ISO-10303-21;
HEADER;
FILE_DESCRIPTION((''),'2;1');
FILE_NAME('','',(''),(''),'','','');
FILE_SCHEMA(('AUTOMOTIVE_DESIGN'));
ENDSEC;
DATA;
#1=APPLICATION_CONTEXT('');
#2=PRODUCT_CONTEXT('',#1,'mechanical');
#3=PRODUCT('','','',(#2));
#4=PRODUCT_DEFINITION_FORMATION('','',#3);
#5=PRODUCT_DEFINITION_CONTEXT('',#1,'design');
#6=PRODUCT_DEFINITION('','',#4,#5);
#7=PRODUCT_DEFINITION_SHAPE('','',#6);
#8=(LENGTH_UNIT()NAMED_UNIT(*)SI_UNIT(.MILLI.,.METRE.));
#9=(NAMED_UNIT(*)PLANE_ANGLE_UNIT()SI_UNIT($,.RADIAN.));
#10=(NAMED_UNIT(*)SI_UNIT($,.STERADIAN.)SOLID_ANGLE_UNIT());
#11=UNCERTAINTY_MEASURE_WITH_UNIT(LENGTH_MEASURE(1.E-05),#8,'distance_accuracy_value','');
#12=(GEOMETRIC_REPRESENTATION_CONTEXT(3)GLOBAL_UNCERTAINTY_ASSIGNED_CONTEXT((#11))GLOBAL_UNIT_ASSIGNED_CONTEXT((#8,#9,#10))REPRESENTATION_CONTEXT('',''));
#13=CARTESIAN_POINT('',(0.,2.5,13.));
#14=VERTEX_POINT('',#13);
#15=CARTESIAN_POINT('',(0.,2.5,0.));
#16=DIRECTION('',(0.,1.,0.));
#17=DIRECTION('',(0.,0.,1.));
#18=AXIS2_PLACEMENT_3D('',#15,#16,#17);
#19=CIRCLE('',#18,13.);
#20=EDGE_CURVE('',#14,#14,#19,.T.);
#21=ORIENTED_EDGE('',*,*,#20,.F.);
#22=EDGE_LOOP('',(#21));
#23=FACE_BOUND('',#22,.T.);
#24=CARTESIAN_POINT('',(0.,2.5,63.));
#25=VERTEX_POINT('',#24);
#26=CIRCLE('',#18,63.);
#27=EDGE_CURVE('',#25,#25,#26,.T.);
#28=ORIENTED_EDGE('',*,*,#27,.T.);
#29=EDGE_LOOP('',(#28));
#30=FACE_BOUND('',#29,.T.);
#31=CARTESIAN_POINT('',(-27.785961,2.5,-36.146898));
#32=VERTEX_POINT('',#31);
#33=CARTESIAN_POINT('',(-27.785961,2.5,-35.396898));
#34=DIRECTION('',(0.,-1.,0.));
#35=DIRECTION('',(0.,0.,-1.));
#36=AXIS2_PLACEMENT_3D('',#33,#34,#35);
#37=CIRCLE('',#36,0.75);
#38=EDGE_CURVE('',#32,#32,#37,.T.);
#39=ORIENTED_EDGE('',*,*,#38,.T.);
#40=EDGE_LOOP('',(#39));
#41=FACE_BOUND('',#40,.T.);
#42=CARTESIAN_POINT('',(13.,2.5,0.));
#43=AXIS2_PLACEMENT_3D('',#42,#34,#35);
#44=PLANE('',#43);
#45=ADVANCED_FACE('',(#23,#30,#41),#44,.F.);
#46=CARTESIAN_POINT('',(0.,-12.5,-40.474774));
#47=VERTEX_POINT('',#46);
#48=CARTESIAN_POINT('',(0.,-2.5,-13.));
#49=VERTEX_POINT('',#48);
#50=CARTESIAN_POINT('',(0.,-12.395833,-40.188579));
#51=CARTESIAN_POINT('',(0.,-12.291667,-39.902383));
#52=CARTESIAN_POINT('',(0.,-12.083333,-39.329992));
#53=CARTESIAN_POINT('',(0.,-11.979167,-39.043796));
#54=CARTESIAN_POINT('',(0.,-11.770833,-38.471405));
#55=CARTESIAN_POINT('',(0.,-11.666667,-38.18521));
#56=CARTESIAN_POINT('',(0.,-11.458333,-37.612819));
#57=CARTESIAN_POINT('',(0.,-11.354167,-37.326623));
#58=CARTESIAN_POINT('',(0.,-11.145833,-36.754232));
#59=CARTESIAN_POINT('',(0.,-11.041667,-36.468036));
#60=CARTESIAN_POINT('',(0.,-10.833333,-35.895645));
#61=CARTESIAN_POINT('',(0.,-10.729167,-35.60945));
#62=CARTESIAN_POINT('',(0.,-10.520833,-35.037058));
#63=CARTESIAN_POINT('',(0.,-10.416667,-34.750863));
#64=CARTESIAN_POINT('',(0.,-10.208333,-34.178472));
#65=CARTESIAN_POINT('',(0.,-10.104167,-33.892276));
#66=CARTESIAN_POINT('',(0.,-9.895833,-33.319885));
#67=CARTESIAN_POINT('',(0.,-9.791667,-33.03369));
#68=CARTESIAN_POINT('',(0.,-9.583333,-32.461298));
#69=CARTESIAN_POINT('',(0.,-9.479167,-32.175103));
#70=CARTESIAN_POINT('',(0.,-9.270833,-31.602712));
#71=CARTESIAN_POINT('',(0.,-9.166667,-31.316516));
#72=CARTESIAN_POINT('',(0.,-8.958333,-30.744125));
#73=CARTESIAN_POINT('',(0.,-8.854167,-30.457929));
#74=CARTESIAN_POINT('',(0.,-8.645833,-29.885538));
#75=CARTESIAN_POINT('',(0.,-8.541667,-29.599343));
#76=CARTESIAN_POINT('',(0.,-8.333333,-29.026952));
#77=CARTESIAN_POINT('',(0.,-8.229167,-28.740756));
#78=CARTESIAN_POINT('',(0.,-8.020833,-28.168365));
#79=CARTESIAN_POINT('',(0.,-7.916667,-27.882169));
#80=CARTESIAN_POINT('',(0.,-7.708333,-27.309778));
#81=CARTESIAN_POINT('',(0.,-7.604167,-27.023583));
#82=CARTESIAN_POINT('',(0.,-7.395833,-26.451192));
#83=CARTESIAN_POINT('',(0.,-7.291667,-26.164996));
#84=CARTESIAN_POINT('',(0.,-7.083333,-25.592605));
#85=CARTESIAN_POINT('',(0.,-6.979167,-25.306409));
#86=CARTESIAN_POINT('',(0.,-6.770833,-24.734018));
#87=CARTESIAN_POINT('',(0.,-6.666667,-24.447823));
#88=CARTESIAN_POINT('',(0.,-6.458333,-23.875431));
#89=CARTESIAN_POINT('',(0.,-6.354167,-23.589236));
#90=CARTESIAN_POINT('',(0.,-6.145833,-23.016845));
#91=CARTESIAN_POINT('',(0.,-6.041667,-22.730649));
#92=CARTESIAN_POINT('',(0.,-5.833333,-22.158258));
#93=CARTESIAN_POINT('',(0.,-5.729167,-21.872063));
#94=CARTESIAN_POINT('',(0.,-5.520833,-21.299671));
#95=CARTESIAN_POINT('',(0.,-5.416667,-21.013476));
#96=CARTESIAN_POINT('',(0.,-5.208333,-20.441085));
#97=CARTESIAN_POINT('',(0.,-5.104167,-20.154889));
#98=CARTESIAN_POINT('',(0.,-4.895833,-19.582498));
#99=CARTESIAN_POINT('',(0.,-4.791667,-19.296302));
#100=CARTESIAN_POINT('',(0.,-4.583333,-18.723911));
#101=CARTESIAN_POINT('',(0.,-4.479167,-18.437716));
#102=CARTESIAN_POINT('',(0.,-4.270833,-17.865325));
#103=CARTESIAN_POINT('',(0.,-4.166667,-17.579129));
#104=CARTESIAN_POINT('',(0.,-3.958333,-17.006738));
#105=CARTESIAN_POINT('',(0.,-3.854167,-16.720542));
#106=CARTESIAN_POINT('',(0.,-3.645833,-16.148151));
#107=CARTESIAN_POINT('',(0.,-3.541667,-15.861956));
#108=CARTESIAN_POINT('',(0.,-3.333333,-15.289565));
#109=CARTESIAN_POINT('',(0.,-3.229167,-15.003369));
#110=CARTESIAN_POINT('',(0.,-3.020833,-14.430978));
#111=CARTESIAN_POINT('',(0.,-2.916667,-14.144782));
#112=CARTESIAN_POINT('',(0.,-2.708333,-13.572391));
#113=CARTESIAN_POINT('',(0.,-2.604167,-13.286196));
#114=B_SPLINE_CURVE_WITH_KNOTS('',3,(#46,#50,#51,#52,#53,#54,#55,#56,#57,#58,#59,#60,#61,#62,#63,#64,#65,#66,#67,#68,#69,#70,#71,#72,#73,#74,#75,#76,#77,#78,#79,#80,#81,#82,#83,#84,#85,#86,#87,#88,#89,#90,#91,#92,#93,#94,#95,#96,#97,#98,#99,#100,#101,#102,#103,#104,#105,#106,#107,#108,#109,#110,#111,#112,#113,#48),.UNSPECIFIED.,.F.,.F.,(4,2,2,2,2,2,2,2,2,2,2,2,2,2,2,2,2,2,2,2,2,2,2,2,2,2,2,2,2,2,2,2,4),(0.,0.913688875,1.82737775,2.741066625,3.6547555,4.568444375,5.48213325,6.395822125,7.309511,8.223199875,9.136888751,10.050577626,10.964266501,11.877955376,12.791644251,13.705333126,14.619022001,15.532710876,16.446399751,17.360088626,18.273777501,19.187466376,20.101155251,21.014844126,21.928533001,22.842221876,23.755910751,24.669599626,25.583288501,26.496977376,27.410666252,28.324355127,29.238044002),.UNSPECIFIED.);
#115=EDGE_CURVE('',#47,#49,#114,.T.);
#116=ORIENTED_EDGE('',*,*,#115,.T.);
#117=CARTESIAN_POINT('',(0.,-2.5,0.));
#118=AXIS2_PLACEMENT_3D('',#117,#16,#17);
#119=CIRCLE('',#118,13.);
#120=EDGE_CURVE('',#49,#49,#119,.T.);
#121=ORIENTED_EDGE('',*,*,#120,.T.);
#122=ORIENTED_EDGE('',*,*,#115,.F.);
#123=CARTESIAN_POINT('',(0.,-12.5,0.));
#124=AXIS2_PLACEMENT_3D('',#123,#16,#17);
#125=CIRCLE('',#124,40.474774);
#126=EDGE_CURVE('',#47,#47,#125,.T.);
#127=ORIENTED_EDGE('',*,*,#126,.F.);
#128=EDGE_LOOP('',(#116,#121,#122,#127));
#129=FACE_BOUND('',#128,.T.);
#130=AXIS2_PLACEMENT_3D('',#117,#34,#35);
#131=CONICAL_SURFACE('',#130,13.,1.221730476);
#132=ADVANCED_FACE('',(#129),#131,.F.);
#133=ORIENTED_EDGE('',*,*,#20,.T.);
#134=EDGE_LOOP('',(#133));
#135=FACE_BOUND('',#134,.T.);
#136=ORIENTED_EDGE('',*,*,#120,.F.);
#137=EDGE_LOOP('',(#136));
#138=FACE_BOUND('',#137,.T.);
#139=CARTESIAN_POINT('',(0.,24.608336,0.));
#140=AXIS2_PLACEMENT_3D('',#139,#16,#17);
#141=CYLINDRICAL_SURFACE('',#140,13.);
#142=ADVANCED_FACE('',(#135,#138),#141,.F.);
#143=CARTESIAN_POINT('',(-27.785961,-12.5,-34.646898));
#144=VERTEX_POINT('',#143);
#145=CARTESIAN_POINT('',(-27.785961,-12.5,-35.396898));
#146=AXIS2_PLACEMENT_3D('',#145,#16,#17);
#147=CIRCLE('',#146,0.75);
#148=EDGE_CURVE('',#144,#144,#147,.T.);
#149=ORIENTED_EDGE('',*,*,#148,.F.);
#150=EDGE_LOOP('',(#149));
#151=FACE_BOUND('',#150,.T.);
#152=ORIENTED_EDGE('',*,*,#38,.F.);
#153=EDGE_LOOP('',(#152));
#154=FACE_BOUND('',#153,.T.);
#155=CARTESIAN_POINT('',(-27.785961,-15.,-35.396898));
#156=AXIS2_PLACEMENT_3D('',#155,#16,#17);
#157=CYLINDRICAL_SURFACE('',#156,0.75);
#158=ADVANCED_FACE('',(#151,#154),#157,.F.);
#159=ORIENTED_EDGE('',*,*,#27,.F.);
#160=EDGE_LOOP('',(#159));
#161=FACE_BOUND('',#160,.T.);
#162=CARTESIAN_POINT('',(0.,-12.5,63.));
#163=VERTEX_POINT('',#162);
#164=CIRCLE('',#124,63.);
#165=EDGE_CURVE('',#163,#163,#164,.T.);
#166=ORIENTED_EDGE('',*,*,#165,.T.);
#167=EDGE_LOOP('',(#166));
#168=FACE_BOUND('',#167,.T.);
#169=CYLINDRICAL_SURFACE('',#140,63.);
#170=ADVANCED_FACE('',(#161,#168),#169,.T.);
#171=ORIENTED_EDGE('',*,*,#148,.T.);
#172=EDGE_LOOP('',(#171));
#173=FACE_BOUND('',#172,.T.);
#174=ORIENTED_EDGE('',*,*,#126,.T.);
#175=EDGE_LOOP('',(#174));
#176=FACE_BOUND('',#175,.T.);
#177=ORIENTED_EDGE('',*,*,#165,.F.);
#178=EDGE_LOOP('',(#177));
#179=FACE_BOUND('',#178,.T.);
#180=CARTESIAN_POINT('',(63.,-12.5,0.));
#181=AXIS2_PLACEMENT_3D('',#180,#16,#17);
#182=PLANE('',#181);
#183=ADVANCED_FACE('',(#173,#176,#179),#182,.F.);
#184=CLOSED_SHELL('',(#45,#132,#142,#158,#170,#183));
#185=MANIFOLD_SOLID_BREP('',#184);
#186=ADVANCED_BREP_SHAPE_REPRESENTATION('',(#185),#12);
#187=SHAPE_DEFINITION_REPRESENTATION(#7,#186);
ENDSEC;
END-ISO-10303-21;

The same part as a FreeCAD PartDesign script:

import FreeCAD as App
import Part
import Sketcher
Q = App.Units.Quantity


def add_polygon(sketch, points):
    """Adds a closed chain of lines whose ends are joined by coincident constraints."""
    first, n = sketch.GeometryCount, len(points)
    for a, b in zip(points, points[1:] + points[:1]):
        sketch.addGeometry(Part.LineSegment(App.Vector(*a, 0), App.Vector(*b, 0)), False)
    for i in range(n):
        sketch.addConstraint(Sketcher.Constraint("Coincident", first + i, 2, first + (i + 1) % n, 1))

doc = App.newDocument("Part")
params = doc.addObject("Spreadsheet::Sheet", "Params")
for row, (alias, value) in enumerate([
    ("sketch1_width", "50 mm"),
    ("sketch1_height", "5 mm"),
    ("sketch1_height2", "15 mm"),
    ("revolution_angle", "360 deg"),
    ("sketch2_diameter", "1.5 mm"),
    ("pocket1_length", "30 mm"),
], start=1):
    params.set(f"A{row}", alias)
    params.set(f"B{row}", "=" + value)
    params.setAlias(f"B{row}", alias)

body = doc.addObject("PartDesign::Body", "Body")

# Sketch on XY plane
sketch1 = body.newObject("Sketcher::SketchObject", "Sketch")
sketch1.AttachmentSupport = (doc.getObject("XY_Plane"), [""])
sketch1.MapMode = "FlatFace"
add_polygon(sketch1, [(63, 2), (13, 2), (13, -2), (40, -12), (63, -12)])  # lines 0-4
sketch1.addConstraint(Sketcher.Constraint("Horizontal", 0))
sketch1.addConstraint(Sketcher.Constraint("Vertical", 1))
sketch1.addConstraint(Sketcher.Constraint("Horizontal", 3))
sketch1.addConstraint(Sketcher.Constraint("Vertical", 4))
sketch1.addConstraint(Sketcher.Constraint("DistanceX", 0, 2, 0, 1, Q("50 mm")))
sketch1.addConstraint(Sketcher.Constraint("DistanceY", 1, 2, 1, 1, Q("5 mm")))
sketch1.addConstraint(Sketcher.Constraint("DistanceY", 4, 1, 4, 2, Q("15 mm")))
sketch1.addConstraint(Sketcher.Constraint("Angle", 2, Q("-20 deg")))
sketch1.addConstraint(Sketcher.Constraint("DistanceX", -1, 1, 0, 2, Q("13 mm")))
sketch1.addConstraint(Sketcher.Constraint("DistanceY", -1, 1, 0, 2, Q("2.5 mm")))
sketch1.setExpression("Constraints[9]", "Params.sketch1_width")
sketch1.setExpression("Constraints[10]", "Params.sketch1_height")
sketch1.setExpression("Constraints[11]", "Params.sketch1_height2")
revolution = body.newObject("PartDesign::Revolution", "Revolution")
revolution.Profile = sketch1
revolution.ReferenceAxis = (sketch1, ["V_Axis"])
revolution.setExpression("Angle", "Params.revolution_angle")

# Sketch on XZ plane
sketch2 = body.newObject("Sketcher::SketchObject", "Sketch001")
sketch2.AttachmentSupport = (doc.getObject("XZ_Plane"), [""])
sketch2.MapMode = "FlatFace"
sketch2.addGeometry(Part.Circle(App.Vector(-27.8, -35.4, 0), App.Vector(0, 0, 1), 0.8), False)
sketch2.addConstraint(Sketcher.Constraint("Diameter", 0, Q("1.5 mm")))
sketch2.addConstraint(Sketcher.Constraint("DistanceX", 0, 3, -1, 1, Q("27.785961 mm")))
sketch2.addConstraint(Sketcher.Constraint("DistanceY", 0, 3, -1, 1, Q("35.396898 mm")))
sketch2.setExpression("Constraints[0]", "Params.sketch2_diameter")
pocket1 = body.newObject("PartDesign::Pocket", "Pocket")
pocket1.Profile = sketch2
pocket1.setExpression("Length", "Params.pocket1_length")
pocket1.Midplane = True

doc.recompute()
